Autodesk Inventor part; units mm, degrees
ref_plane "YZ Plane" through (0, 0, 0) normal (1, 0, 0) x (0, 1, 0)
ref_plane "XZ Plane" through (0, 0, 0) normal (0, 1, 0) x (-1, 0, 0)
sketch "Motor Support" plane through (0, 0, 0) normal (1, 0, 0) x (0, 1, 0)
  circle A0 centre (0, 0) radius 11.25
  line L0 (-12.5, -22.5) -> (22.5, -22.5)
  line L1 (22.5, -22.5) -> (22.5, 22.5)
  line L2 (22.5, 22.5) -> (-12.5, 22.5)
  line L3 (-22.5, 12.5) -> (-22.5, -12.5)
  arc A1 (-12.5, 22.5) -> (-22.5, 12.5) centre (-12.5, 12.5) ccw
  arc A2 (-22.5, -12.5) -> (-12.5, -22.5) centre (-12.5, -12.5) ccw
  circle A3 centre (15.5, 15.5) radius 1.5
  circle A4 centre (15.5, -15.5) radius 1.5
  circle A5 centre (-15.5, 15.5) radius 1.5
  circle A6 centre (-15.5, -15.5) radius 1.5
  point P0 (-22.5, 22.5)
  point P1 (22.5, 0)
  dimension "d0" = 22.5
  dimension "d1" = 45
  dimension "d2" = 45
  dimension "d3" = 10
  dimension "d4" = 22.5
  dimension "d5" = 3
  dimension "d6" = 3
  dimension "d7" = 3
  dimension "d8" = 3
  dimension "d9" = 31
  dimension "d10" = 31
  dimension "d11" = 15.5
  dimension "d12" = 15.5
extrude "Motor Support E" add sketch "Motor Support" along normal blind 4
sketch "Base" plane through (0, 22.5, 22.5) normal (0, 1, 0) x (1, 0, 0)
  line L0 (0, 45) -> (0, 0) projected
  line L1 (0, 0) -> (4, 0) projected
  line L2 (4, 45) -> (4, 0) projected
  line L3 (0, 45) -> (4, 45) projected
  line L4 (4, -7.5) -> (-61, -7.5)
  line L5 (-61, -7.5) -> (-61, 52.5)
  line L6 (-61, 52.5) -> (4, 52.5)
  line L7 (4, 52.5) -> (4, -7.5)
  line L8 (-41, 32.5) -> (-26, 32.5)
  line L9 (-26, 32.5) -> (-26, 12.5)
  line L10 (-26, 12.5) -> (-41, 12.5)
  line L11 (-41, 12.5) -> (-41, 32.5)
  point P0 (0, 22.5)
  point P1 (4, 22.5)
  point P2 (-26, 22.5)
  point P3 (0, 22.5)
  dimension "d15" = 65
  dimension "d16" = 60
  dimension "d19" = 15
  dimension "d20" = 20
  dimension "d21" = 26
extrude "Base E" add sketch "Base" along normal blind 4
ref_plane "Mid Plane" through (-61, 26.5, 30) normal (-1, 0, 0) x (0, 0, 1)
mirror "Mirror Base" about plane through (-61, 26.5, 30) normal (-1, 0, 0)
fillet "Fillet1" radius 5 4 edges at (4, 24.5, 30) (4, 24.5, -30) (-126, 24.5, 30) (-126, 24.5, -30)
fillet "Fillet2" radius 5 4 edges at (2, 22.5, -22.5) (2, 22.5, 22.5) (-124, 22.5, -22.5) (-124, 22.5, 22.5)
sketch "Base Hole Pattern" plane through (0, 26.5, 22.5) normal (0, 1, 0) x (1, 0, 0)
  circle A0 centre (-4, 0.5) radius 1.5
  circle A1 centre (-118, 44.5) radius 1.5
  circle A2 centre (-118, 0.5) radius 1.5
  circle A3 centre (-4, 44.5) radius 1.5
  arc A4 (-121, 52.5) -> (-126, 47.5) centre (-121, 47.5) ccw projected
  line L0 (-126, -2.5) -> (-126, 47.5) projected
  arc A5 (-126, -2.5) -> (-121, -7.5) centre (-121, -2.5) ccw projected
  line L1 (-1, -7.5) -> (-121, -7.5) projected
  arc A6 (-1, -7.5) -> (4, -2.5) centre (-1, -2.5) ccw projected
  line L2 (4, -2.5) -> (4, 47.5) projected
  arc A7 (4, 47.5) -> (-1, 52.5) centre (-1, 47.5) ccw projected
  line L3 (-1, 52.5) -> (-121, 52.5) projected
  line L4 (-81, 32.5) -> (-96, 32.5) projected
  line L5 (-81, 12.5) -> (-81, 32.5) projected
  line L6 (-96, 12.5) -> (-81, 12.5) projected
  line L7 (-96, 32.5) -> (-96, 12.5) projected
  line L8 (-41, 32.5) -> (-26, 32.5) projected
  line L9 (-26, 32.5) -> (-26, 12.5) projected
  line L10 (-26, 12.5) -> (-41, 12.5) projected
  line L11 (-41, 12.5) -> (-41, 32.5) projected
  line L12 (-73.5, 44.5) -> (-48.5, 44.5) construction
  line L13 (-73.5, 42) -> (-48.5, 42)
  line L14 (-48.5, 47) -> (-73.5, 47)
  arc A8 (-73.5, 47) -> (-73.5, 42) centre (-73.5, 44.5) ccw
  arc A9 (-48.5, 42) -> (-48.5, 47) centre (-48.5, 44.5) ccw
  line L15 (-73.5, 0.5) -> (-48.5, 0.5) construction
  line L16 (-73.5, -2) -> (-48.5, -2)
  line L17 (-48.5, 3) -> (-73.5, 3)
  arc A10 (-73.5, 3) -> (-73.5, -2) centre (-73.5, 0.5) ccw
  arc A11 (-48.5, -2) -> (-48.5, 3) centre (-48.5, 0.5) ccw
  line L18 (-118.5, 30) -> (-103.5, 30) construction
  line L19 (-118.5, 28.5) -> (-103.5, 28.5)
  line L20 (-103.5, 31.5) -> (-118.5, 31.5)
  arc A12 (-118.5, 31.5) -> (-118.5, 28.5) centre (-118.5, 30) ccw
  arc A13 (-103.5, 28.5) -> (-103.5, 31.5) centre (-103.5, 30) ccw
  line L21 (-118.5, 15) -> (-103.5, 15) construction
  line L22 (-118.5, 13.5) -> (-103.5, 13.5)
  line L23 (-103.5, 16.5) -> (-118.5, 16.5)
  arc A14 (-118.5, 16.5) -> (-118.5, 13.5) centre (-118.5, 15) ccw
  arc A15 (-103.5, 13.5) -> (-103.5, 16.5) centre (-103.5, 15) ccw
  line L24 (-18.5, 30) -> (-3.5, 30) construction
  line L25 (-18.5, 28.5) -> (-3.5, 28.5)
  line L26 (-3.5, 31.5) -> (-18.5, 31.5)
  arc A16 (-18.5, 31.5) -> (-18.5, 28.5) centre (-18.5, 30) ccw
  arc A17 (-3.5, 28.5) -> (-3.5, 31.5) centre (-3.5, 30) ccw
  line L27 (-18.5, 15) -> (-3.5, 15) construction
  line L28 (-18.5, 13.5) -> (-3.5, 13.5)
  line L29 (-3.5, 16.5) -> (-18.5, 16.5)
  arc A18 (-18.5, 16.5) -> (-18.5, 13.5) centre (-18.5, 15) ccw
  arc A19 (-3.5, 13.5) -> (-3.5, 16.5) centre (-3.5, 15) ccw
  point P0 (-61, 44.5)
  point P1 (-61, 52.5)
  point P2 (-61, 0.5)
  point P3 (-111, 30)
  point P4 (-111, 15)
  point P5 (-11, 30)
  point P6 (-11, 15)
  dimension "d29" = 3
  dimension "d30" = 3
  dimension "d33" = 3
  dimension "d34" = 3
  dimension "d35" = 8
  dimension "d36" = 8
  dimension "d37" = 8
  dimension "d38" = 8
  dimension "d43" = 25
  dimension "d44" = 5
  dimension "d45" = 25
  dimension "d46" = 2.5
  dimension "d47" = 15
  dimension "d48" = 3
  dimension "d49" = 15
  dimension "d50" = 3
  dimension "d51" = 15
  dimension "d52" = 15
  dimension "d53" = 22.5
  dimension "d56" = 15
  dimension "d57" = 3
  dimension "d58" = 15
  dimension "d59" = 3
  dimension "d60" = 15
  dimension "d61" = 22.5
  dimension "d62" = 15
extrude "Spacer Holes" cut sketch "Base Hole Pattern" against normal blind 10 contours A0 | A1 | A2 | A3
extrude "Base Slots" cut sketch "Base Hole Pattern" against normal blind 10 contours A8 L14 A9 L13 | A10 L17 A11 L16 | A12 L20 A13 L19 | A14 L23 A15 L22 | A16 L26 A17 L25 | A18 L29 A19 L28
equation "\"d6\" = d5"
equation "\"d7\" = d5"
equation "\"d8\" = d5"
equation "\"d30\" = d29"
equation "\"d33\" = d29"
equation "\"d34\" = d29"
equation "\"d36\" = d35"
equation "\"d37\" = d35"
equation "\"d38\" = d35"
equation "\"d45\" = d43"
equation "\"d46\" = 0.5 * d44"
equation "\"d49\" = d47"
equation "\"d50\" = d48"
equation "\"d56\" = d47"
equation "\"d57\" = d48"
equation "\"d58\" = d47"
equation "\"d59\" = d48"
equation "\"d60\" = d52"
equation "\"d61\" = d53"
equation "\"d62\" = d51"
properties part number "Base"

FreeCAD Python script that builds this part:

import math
import FreeCAD as App
import Part
import Sketcher

V = App.Vector


def edges_at(feature, points):
    """Names of the edges that pass closest to the given points."""
    edges = feature.Shape.Edges
    near = lambda p: min(range(len(edges)), key=lambda i: edges[i].distToShape(Part.Vertex(*p))[0])
    return sorted({f"Edge{near(p) + 1}" for p in points})

doc = App.newDocument("Part")
body = doc.addObject("PartDesign::Body", "Body")

# Sketch on YZ plane
sketch1 = body.newObject("Sketcher::SketchObject", "Sketch")
sketch1.AttachmentSupport = (doc.getObject("YZ_Plane"), [""])
sketch1.MapMode = "FlatFace"
sketch1.addGeometry([
    Part.ArcOfCircle(Part.Circle(V(-12.5, -12.5, 0), V(0, 0, 1), 10), math.radians(180), math.radians(270)),  # 0
    Part.LineSegment(V(-12.5, -22.5, 0), V(22.5, -22.5, 0)),  # 1
    Part.LineSegment(V(22.5, -22.5, 0), V(22.5, 22.5, 0)),  # 2
    Part.LineSegment(V(22.5, 22.5, 0), V(-12.5, 22.5, 0)),  # 3
    Part.ArcOfCircle(Part.Circle(V(-12.5, 12.5, 0), V(0, 0, 1), 10), math.radians(90), math.radians(180)),  # 4
    Part.LineSegment(V(-22.5, 12.5, 0), V(-22.5, -12.5, 0)),  # 5
    Part.Circle(V(-15.5, -15.5, 0), V(0, 0, 1), 1.5),  # 6
    Part.Circle(V(15.5, -15.5, 0), V(0, 0, 1), 1.5),  # 7
    Part.Circle(V(-15.5, 15.5, 0), V(0, 0, 1), 1.5),  # 8
    Part.Circle(V(0, 0, 0), V(0, 0, 1), 11.2),  # 9
    Part.Circle(V(15.5, 15.5, 0), V(0, 0, 1), 1.5),  # 10
], False)
sketch1.addConstraint([
    Sketcher.Constraint("Tangent", 0, 2, 1, 1),
    Sketcher.Constraint("Coincident", 1, 2, 2, 1),
    Sketcher.Constraint("Coincident", 2, 2, 3, 1),
    Sketcher.Constraint("Tangent", 3, 2, 4, 1),
    Sketcher.Constraint("Tangent", 4, 2, 5, 1),
    Sketcher.Constraint("Tangent", 5, 2, 0, 1),
    Sketcher.Constraint("Horizontal", 1),
    Sketcher.Constraint("Vertical", 2),
    Sketcher.Constraint("Horizontal", 3),
    Sketcher.Constraint("Vertical", 5),
    Sketcher.Constraint("Coincident", 9, 3, -1, 1),
    Sketcher.Constraint("Equal", 0, 4),
    Sketcher.Constraint("Equal", 6, 7),
    Sketcher.Constraint("Equal", 7, 8),
    Sketcher.Constraint("Equal", 8, 10),
    Sketcher.Constraint("Symmetric", 7, 3, 8, 3, -1, 1),
    Sketcher.Constraint("Symmetric", 6, 3, 10, 3, -1, 1),
    Sketcher.Constraint("Symmetric", 6, 3, 7, 3, -2),
    Sketcher.Constraint("Diameter", 6, 3.0),
    Sketcher.Constraint("Radius", 0, 10.0),
    Sketcher.Constraint("Diameter", 9, 22.5),
    Sketcher.Constraint("DistanceY", 2, 1, 2, 2, 45.0),
    Sketcher.Constraint("DistanceX", 6, 3, 0, 3, 3.0),
    Sketcher.Constraint("DistanceY", 6, 3, 0, 3, 3.0),
    Sketcher.Constraint("DistanceX", 6, 3, 7, 3, 31.0),
    Sketcher.Constraint("DistanceY", 4, 3, 8, 3, 3.0),
    Sketcher.Constraint("DistanceX", -1, 1, 1, 2, 22.5),
])
pad1 = body.newObject("PartDesign::Pad", "Pad")
pad1.Profile = sketch1
pad1.Length = 4

# Sketch on XZ plane
sketch2 = body.newObject("Sketcher::SketchObject", "Sketch001")
sketch2.AttachmentSupport = (doc.getObject("XZ_Plane"), [""])
sketch2.MapMode = "FlatFace"
sketch2.AttachmentOffset = App.Placement(V(0, 0, -22.5), App.Rotation())
sketch2.addGeometry([
    Part.LineSegment(V(4, -30, 0), V(-61, -30, 0)),  # 0
    Part.LineSegment(V(-61, -30, 0), V(-61, 30, 0)),  # 1
    Part.LineSegment(V(-61, 30, 0), V(4, 30, 0)),  # 2
    Part.LineSegment(V(4, 30, 0), V(4, -30, 0)),  # 3
    Part.LineSegment(V(-26, 10, 0), V(-41, 10, 0)),  # 4
    Part.LineSegment(V(-41, 10, 0), V(-41, -10, 0)),  # 5
    Part.LineSegment(V(-41, -10, 0), V(-26, -10, 0)),  # 6
    Part.LineSegment(V(-26, -10, 0), V(-26, 10, 0)),  # 7
], False)
sketch2.addConstraint([
    Sketcher.Constraint("Coincident", 0, 2, 1, 1),
    Sketcher.Constraint("Coincident", 1, 2, 2, 1),
    Sketcher.Constraint("Coincident", 2, 2, 3, 1),
    Sketcher.Constraint("Coincident", 3, 2, 0, 1),
    Sketcher.Constraint("Coincident", 4, 2, 5, 1),
    Sketcher.Constraint("Coincident", 5, 2, 6, 1),
    Sketcher.Constraint("Coincident", 6, 2, 7, 1),
    Sketcher.Constraint("Coincident", 7, 2, 4, 1),
    Sketcher.Constraint("Horizontal", 0),
    Sketcher.Constraint("Vertical", 1),
    Sketcher.Constraint("Horizontal", 2),
    Sketcher.Constraint("Vertical", 3),
    Sketcher.Constraint("Horizontal", 4),
    Sketcher.Constraint("Vertical", 5),
    Sketcher.Constraint("Horizontal", 6),
    Sketcher.Constraint("Vertical", 7),
    Sketcher.Constraint("DistanceX", 0, 2, 0, 1, 65.0),
    Sketcher.Constraint("DistanceX", 4, 2, 4, 1, 15.0),
    Sketcher.Constraint("DistanceY", 1, 1, 1, 2, 60.0),
    Sketcher.Constraint("DistanceY", 5, 2, 5, 1, 20.0),
    Sketcher.Constraint("DistanceX", 6, 2, -1, 1, 26.0),
    Sketcher.Constraint("DistanceX", 1, 2, 4, 2, 20.0),
    Sketcher.Constraint("DistanceY", 4, 2, 1, 2, 20.0),
    Sketcher.Constraint("DistanceY", 0, 2, -1, 1, 30.0),
])
pad2 = body.newObject("PartDesign::Pad", "Pad001")
pad2.Profile = sketch2
pad2.Length = 4
pad2.Reversed = True
doc.recompute()

datumplane = body.newObject("PartDesign::Plane", "DatumPlane")
datumplane.AttachmentSupport = (doc.getObject("YZ_Plane"), [""])
datumplane.MapMode = "FlatFace"
datumplane.AttachmentOffset = App.Placement(V(0, 0, -61), App.Rotation())
mirrored = body.newObject("PartDesign::Mirrored", "Mirrored")
mirrored.TransformMode = "Transform body"
mirrored.MirrorPlane = (datumplane, [""])
body.Tip = mirrored
doc.recompute()

fillet = body.newObject("PartDesign::Fillet", "Fillet")
fillet.Base = (mirrored, edges_at(mirrored, [
    (4, 24.5, 30),
    (4, 24.5, -30),
    (-126, 24.5, 30),
    (-126, 24.5, -30),
]))
fillet.Radius = 5
doc.recompute()

fillet2 = body.newObject("PartDesign::Fillet", "Fillet001")
fillet2.Base = (fillet, edges_at(fillet, [
    (2, 22.5, -22.5),
    (2, 22.5, 22.5),
    (-124, 22.5, -22.5),
    (-124, 22.5, 22.5),
]))
fillet2.Radius = 5

# Sketch on XZ plane
sketch3 = body.newObject("Sketcher::SketchObject", "Sketch002")
sketch3.AttachmentSupport = (doc.getObject("XZ_Plane"), [""])
sketch3.MapMode = "FlatFace"
sketch3.AttachmentOffset = App.Placement(V(0, 0, -26.5), App.Rotation())
sketch3.addGeometry([
    Part.Circle(V(-4, 22, 0), V(0, 0, 1), 1.5),
    Part.Circle(V(-118, -22, 0), V(0, 0, 1), 1.5),
    Part.Circle(V(-118, 22, 0), V(0, 0, 1), 1.5),
    Part.Circle(V(-4, -22, 0), V(0, 0, 1), 1.5),
], False)
sketch3.addConstraint([
    Sketcher.Constraint("Equal", 0, 1),
    Sketcher.Constraint("Equal", 1, 2),
    Sketcher.Constraint("Equal", 2, 3),
    Sketcher.Constraint("Symmetric", 1, 3, 2, 3, -1),
    Sketcher.Constraint("Symmetric", 0, 3, 3, 3, -1),
    Sketcher.Constraint("Horizontal", 0, 3, 2, 3),
    Sketcher.Constraint("Diameter", 0, 3.0),
    Sketcher.Constraint("DistanceX", 0, 3, -1, 1, 4.0),
    Sketcher.Constraint("DistanceY", -1, 1, 0, 3, 22.0),
    Sketcher.Constraint("DistanceX", 1, 3, -1, 1, 118.0),
])
pocket1 = body.newObject("PartDesign::Pocket", "Pocket")
pocket1.Profile = sketch3
pocket1.Length = 10
pocket1.Reversed = True

# Sketch on XZ plane
sketch4 = body.newObject("Sketcher::SketchObject", "Sketch003")
sketch4.AttachmentSupport = (doc.getObject("XZ_Plane"), [""])
sketch4.MapMode = "FlatFace"
sketch4.AttachmentOffset = App.Placement(V(0, 0, -26.5), App.Rotation())
sketch4.addGeometry([
    Part.ArcOfCircle(Part.Circle(V(-73.5, -22, 0), V(0, 0, 1), 2.5), math.radians(90), math.radians(270)),  # 0
    Part.LineSegment(V(-73.5, -19.5, 0), V(-48.5, -19.5, 0)),  # 1
    Part.ArcOfCircle(Part.Circle(V(-48.5, -22, 0), V(0, 0, 1), 2.5), math.radians(-90), math.radians(90)),  # 2
    Part.LineSegment(V(-48.5, -24.5, 0), V(-73.5, -24.5, 0)),  # 3
    Part.ArcOfCircle(Part.Circle(V(-73.5, 22, 0), V(0, 0, 1), 2.5), math.radians(90), math.radians(270)),  # 4
    Part.LineSegment(V(-73.5, 24.5, 0), V(-48.5, 24.5, 0)),  # 5
    Part.ArcOfCircle(Part.Circle(V(-48.5, 22, 0), V(0, 0, 1), 2.5), math.radians(-90), math.radians(90)),  # 6
    Part.LineSegment(V(-48.5, 19.5, 0), V(-73.5, 19.5, 0)),  # 7
    Part.ArcOfCircle(Part.Circle(V(-118.5, -7.5, 0), V(0, 0, 1), 1.5), math.radians(90), math.radians(270)),  # 8
    Part.LineSegment(V(-118.5, -6, 0), V(-103.5, -6, 0)),  # 9
    Part.ArcOfCircle(Part.Circle(V(-103.5, -7.5, 0), V(0, 0, 1), 1.5), math.radians(-90), math.radians(90)),  # 10
    Part.LineSegment(V(-103.5, -9, 0), V(-118.5, -9, 0)),  # 11
    Part.ArcOfCircle(Part.Circle(V(-118.5, 7.5, 0), V(0, 0, 1), 1.5), math.radians(90), math.radians(270)),  # 12
    Part.LineSegment(V(-118.5, 9, 0), V(-103.5, 9, 0)),  # 13
    Part.ArcOfCircle(Part.Circle(V(-103.5, 7.5, 0), V(0, 0, 1), 1.5), math.radians(-90), math.radians(90)),  # 14
    Part.LineSegment(V(-103.5, 6, 0), V(-118.5, 6, 0)),  # 15
    Part.ArcOfCircle(Part.Circle(V(-18.5, -7.5, 0), V(0, 0, 1), 1.5), math.radians(90), math.radians(270)),  # 16
    Part.LineSegment(V(-18.5, -6, 0), V(-3.5, -6, 0)),  # 17
    Part.ArcOfCircle(Part.Circle(V(-3.5, -7.5, 0), V(0, 0, 1), 1.5), math.radians(-90), math.radians(90)),  # 18
    Part.LineSegment(V(-3.5, -9, 0), V(-18.5, -9, 0)),  # 19
    Part.ArcOfCircle(Part.Circle(V(-18.5, 7.5, 0), V(0, 0, 1), 1.5), math.radians(90), math.radians(270)),  # 20
    Part.LineSegment(V(-18.5, 9, 0), V(-3.5, 9, 0)),  # 21
    Part.ArcOfCircle(Part.Circle(V(-3.5, 7.5, 0), V(0, 0, 1), 1.5), math.radians(-90), math.radians(90)),  # 22
    Part.LineSegment(V(-3.5, 6, 0), V(-18.5, 6, 0)),  # 23
], False)
sketch4.addConstraint([
    Sketcher.Constraint("Tangent", 0, 1, 1, 1),
    Sketcher.Constraint("Tangent", 1, 2, 2, 2),
    Sketcher.Constraint("Tangent", 2, 1, 3, 1),
    Sketcher.Constraint("Tangent", 3, 2, 0, 2),
    Sketcher.Constraint("Tangent", 4, 1, 5, 1),
    Sketcher.Constraint("Tangent", 5, 2, 6, 2),
    Sketcher.Constraint("Tangent", 6, 1, 7, 1),
    Sketcher.Constraint("Tangent", 7, 2, 4, 2),
    Sketcher.Constraint("Tangent", 8, 1, 9, 1),
    Sketcher.Constraint("Tangent", 9, 2, 10, 2),
    Sketcher.Constraint("Tangent", 10, 1, 11, 1),
    Sketcher.Constraint("Tangent", 11, 2, 8, 2),
    Sketcher.Constraint("Tangent", 12, 1, 13, 1),
    Sketcher.Constraint("Tangent", 13, 2, 14, 2),
    Sketcher.Constraint("Tangent", 14, 1, 15, 1),
    Sketcher.Constraint("Tangent", 15, 2, 12, 2),
    Sketcher.Constraint("Tangent", 16, 1, 17, 1),
    Sketcher.Constraint("Tangent", 17, 2, 18, 2),
    Sketcher.Constraint("Tangent", 18, 1, 19, 1),
    Sketcher.Constraint("Tangent", 19, 2, 16, 2),
    Sketcher.Constraint("Tangent", 20, 1, 21, 1),
    Sketcher.Constraint("Tangent", 21, 2, 22, 2),
    Sketcher.Constraint("Tangent", 22, 1, 23, 1),
    Sketcher.Constraint("Tangent", 23, 2, 20, 2),
    Sketcher.Constraint("Horizontal", 1),
    Sketcher.Constraint("Horizontal", 3),
    Sketcher.Constraint("Horizontal", 5),
    Sketcher.Constraint("Horizontal", 7),
    Sketcher.Constraint("Horizontal", 9),
    Sketcher.Constraint("Horizontal", 11),
    Sketcher.Constraint("Horizontal", 13),
    Sketcher.Constraint("Horizontal", 15),
    Sketcher.Constraint("Horizontal", 17),
    Sketcher.Constraint("Horizontal", 19),
    Sketcher.Constraint("Horizontal", 21),
    Sketcher.Constraint("Horizontal", 23),
    Sketcher.Constraint("Equal", 2, 4),
    Sketcher.Constraint("Equal", 10, 12),
    Sketcher.Constraint("Equal", 14, 16),
    Sketcher.Constraint("Equal", 18, 20),
    Sketcher.Constraint("Symmetric", 0, 3, 4, 3, -1),
    Sketcher.Constraint("Symmetric", 8, 3, 12, 3, -1),
    Sketcher.Constraint("Symmetric", 16, 3, 20, 3, -1),
    Sketcher.Constraint("Horizontal", 10, 3, 16, 3),
    Sketcher.Constraint("Vertical", 2, 3, 6, 3),
    Sketcher.Constraint("Vertical", 10, 3, 14, 3),
    Sketcher.Constraint("Vertical", 18, 3, 22, 3),
    Sketcher.Constraint("Equal", 15, 17),
    Sketcher.Constraint("Radius", 0, 2.5),
    Sketcher.Constraint("Radius", 8, 1.5),
    Sketcher.Constraint("DistanceX", 1, 1, 1, 2, 25.0),
    Sketcher.Constraint("DistanceX", 9, 1, 9, 2, 15.0),
    Sketcher.Constraint("DistanceY", 8, 3, 12, 3, 15.0),
    Sketcher.Constraint("DistanceY", 0, 3, -1, 1, 22.0),
    Sketcher.Constraint("DistanceX", 8, 3, 0, 3, 45.0),
    Sketcher.Constraint("DistanceX", 2, 3, 16, 3, 30.0),
    Sketcher.Constraint("DistanceX", 0, 3, -1, 1, 73.5),
])
pocket2 = body.newObject("PartDesign::Pocket", "Pocket001")
pocket2.Profile = sketch4
pocket2.Length = 10
pocket2.Reversed = True

doc.recompute()
